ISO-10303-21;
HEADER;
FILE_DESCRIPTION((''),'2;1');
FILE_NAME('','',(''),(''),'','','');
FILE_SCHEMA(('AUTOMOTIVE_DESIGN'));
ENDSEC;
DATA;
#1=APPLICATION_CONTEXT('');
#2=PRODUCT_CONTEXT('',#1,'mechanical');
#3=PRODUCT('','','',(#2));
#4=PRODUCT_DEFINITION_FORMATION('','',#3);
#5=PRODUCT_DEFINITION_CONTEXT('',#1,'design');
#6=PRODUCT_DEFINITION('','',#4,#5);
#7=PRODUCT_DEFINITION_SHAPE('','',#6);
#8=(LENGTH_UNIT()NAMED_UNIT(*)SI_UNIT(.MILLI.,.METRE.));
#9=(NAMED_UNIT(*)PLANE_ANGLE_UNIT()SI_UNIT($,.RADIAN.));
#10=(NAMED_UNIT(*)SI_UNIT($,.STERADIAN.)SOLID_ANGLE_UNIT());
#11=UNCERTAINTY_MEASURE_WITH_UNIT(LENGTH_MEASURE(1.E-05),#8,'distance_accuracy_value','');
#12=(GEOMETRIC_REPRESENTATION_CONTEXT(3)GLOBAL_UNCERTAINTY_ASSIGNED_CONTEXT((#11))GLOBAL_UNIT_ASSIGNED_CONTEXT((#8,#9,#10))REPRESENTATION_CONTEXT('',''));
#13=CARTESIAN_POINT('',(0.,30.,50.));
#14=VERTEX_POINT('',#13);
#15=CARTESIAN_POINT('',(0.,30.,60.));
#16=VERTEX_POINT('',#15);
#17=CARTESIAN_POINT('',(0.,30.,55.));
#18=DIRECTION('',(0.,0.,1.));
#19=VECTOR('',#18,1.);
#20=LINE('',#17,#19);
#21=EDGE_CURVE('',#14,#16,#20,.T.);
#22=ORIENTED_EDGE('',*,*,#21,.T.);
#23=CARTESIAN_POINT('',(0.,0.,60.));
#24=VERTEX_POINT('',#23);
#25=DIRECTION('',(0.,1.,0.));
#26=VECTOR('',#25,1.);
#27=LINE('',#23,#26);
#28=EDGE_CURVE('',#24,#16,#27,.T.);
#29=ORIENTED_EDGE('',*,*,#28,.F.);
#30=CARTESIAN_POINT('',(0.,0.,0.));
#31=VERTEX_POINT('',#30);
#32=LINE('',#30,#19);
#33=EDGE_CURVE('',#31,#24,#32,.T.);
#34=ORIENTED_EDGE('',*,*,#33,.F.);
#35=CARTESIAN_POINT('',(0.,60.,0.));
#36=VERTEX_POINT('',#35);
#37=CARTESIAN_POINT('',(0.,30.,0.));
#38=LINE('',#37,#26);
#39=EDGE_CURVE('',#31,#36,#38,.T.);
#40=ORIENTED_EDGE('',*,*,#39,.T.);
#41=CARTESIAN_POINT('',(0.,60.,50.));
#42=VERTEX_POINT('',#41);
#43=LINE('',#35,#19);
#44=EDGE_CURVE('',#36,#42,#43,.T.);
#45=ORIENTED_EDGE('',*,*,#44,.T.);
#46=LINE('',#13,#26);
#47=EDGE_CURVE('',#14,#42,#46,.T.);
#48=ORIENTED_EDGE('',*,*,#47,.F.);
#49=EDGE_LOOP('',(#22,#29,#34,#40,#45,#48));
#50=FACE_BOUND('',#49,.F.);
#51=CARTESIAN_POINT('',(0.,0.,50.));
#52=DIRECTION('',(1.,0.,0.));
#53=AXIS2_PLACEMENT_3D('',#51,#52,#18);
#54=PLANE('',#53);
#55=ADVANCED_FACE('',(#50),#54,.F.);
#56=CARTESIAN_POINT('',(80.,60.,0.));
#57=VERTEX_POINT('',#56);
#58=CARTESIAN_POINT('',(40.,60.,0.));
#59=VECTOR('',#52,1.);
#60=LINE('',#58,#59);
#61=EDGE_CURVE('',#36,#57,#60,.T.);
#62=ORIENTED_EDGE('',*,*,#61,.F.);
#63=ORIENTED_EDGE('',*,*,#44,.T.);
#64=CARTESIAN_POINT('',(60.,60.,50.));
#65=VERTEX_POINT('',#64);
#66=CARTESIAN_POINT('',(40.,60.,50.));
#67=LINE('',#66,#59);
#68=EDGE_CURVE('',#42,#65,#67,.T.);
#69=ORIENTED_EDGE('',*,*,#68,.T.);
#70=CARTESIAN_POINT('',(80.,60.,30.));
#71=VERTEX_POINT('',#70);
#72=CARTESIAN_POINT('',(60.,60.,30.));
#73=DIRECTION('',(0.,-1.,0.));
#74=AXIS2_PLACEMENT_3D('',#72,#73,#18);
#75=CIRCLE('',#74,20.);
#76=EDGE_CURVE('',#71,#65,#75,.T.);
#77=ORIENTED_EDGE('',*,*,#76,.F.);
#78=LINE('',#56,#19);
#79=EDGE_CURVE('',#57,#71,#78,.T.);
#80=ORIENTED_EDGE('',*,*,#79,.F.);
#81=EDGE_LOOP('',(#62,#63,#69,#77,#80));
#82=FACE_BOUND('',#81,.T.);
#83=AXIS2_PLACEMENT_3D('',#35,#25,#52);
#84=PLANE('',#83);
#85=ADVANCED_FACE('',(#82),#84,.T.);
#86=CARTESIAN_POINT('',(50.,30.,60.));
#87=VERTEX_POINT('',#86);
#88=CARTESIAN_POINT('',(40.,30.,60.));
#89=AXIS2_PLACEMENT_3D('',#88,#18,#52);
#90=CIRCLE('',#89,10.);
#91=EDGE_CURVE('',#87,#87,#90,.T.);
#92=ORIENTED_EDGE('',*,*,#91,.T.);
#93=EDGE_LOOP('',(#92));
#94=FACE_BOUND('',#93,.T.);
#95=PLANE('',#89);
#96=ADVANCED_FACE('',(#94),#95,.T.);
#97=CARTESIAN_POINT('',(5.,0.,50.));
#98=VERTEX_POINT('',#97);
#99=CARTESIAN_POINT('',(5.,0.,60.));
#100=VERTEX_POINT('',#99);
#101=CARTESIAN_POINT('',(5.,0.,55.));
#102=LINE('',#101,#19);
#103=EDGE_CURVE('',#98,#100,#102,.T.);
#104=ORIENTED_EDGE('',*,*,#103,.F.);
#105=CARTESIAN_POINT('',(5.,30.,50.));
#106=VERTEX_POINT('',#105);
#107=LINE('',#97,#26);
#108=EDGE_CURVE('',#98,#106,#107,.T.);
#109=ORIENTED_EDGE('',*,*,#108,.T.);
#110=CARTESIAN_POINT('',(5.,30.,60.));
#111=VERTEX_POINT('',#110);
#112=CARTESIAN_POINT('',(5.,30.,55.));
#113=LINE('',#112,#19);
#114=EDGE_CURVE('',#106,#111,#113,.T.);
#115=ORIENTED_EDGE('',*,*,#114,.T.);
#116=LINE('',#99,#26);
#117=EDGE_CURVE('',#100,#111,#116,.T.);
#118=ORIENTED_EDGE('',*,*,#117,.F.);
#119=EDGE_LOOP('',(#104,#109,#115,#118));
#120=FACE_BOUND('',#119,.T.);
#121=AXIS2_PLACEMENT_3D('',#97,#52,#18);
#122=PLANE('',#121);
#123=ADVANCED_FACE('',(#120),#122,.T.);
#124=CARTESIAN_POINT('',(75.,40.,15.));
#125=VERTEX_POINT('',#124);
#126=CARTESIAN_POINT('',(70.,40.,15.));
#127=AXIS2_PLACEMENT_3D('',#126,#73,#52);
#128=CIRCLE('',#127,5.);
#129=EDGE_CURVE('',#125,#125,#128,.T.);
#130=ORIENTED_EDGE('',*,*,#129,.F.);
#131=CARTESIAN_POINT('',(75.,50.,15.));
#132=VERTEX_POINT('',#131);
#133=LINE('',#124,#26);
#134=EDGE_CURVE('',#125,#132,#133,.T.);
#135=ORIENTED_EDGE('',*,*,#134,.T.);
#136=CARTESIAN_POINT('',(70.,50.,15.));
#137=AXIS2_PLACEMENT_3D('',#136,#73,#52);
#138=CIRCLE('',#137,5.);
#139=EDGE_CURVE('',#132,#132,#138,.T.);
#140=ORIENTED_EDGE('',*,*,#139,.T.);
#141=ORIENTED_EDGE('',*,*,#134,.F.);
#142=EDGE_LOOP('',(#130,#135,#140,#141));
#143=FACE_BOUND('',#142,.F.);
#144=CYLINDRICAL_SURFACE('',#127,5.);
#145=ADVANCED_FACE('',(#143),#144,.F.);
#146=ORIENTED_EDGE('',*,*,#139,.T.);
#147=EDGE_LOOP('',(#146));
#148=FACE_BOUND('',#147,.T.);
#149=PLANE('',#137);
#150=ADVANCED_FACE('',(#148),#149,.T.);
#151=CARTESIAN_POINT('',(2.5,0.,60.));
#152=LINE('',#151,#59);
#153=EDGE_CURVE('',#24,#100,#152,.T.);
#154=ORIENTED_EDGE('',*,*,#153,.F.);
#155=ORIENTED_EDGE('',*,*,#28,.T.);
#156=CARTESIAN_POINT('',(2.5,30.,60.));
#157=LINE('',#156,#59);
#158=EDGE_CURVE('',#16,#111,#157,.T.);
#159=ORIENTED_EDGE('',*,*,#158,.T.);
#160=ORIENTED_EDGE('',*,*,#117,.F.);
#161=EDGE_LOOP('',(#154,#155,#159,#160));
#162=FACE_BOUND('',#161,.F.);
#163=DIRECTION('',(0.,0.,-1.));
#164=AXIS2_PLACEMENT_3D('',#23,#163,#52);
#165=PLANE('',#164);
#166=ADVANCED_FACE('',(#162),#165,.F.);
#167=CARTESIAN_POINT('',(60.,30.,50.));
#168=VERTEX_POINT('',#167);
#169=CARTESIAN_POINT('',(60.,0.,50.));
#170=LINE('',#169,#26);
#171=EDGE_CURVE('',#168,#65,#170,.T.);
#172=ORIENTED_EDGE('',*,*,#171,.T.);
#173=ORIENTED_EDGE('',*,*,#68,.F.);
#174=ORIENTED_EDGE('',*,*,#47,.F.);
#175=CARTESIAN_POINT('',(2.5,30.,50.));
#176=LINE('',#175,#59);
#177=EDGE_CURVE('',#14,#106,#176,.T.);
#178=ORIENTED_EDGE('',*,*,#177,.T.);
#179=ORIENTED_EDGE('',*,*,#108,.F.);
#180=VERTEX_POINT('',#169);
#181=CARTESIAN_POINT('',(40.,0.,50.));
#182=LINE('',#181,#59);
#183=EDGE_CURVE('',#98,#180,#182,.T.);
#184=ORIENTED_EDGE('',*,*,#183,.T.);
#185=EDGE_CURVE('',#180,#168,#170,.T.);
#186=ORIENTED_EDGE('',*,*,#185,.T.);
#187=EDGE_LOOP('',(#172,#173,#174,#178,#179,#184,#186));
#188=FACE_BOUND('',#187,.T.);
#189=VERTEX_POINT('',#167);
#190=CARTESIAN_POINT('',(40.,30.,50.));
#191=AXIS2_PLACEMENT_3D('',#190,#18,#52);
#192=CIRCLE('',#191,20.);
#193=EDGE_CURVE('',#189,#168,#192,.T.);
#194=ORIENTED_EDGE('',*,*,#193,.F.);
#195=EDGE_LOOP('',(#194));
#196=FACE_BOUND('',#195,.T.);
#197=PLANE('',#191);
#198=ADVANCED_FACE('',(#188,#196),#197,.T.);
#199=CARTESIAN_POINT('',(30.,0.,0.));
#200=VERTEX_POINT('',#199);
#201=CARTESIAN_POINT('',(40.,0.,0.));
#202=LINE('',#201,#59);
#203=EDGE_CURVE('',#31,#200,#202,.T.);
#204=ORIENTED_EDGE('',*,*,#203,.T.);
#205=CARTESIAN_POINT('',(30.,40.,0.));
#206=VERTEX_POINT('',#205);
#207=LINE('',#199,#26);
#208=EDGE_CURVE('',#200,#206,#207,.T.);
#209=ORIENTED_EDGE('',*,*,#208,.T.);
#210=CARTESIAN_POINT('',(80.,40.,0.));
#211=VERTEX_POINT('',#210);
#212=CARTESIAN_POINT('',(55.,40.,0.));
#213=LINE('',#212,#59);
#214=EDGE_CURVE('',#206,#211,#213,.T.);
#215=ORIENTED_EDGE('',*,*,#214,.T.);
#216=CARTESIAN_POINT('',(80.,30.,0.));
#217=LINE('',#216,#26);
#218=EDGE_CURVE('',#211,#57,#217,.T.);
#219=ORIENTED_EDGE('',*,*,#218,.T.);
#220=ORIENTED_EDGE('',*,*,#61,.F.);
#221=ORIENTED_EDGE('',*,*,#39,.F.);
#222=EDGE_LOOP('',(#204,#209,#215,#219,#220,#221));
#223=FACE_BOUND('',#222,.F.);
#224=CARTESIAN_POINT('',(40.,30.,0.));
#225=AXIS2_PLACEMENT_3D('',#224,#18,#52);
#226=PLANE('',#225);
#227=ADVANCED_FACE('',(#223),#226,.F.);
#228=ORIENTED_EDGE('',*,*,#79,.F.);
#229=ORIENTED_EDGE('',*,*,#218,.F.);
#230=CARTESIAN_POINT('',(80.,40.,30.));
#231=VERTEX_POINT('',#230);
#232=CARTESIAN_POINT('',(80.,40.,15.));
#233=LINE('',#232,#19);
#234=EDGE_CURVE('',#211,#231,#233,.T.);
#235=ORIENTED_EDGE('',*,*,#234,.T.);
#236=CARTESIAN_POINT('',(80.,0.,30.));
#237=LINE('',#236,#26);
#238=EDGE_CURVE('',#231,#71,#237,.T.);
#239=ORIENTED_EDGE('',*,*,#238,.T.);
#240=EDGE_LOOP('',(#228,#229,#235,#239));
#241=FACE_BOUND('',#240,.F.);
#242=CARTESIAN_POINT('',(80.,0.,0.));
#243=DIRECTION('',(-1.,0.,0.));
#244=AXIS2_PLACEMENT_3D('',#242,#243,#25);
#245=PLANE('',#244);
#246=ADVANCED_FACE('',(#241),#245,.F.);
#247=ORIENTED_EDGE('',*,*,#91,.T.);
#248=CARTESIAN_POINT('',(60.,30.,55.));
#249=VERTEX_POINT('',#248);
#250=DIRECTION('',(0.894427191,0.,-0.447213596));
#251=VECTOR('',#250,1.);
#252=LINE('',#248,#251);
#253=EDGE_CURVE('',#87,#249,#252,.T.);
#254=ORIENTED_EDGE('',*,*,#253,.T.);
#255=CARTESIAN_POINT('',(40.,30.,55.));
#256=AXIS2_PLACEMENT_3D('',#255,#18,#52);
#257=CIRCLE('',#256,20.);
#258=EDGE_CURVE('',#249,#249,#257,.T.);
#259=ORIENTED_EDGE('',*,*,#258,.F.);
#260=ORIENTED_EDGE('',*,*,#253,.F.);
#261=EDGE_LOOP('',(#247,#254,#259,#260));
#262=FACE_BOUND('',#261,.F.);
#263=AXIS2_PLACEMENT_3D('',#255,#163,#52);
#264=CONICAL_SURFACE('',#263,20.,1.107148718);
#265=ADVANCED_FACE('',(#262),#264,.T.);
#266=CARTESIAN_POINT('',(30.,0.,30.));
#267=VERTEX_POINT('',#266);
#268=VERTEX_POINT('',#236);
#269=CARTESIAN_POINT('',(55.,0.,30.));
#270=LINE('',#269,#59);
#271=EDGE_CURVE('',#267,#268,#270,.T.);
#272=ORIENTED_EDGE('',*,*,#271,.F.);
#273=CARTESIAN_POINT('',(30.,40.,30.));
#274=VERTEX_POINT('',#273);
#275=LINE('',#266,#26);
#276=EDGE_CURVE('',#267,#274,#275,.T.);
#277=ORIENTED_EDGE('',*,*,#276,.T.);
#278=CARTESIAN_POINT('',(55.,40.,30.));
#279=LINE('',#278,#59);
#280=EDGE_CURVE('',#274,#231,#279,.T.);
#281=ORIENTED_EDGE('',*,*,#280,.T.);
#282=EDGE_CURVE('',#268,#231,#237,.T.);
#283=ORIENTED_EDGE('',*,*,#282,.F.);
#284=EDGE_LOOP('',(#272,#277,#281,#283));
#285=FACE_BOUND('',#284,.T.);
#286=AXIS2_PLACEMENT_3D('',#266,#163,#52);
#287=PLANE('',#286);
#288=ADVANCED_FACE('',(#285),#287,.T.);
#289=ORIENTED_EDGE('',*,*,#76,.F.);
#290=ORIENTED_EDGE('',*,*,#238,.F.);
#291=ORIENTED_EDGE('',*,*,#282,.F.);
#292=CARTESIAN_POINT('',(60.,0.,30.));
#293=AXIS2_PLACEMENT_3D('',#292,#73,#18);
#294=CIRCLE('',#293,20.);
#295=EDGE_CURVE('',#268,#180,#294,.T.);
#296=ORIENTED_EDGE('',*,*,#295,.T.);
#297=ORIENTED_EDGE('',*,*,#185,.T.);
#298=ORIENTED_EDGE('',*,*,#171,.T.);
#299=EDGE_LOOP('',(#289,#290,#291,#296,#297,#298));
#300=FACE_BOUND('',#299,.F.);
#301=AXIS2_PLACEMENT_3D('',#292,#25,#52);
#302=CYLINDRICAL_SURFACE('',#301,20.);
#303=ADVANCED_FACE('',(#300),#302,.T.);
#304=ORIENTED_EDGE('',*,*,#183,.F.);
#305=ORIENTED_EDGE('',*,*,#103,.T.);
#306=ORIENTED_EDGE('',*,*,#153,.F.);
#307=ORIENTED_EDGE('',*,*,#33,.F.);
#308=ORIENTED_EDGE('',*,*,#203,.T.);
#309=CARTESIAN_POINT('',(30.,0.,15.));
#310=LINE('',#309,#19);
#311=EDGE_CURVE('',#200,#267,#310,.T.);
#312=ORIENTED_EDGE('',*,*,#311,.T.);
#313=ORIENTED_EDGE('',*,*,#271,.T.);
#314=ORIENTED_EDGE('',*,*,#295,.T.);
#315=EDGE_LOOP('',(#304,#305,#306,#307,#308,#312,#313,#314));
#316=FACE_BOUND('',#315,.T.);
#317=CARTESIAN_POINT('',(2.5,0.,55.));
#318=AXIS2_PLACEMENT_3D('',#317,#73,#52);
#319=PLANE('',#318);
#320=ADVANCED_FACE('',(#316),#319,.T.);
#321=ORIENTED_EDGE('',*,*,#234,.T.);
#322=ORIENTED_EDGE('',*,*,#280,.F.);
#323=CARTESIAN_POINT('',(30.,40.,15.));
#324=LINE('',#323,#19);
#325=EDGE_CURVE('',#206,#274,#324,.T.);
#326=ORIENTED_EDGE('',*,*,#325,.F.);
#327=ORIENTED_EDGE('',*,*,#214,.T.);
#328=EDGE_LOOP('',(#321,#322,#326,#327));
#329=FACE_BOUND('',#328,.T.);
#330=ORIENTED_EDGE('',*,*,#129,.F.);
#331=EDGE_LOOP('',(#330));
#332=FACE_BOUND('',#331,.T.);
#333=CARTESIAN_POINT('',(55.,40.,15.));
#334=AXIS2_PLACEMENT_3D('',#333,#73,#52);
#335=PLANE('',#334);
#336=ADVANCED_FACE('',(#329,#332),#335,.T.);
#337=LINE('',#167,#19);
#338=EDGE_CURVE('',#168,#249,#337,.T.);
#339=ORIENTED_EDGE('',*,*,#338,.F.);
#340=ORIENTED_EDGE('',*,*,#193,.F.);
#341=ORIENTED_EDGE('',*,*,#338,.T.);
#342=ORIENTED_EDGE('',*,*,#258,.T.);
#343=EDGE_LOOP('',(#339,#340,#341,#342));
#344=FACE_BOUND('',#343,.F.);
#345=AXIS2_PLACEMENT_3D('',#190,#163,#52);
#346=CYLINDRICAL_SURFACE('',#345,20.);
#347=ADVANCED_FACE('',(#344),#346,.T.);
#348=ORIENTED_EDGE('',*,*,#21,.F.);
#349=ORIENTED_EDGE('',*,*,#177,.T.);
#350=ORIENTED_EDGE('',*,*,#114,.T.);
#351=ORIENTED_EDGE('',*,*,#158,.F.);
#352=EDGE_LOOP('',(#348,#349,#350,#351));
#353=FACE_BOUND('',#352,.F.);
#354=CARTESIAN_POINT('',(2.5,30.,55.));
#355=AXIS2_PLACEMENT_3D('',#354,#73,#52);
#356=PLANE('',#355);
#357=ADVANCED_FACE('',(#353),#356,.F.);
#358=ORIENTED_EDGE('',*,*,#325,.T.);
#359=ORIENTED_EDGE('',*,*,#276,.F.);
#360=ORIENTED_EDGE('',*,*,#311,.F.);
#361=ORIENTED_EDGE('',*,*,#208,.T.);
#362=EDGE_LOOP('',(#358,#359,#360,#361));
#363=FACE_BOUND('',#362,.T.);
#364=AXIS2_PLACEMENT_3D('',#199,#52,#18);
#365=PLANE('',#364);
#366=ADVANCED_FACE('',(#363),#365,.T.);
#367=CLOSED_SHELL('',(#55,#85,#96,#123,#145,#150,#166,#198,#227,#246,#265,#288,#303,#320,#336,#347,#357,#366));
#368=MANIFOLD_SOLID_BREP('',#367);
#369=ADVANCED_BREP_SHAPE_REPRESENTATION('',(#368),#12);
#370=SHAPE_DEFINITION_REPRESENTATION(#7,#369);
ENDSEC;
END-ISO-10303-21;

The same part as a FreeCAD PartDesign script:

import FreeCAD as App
import Part
import Sketcher
from FreeCAD import Vector


def edges_at(feature, points):
    """Names of the edges that pass closest to the given points."""
    edges = feature.Shape.Edges
    near = lambda p: min(range(len(edges)), key=lambda i: edges[i].distToShape(Part.Vertex(*p))[0])
    return sorted({f"Edge{near(p) + 1}" for p in points})

doc = App.newDocument("Part")
body = doc.addObject("PartDesign::Body", "Body")

sketch1 = body.newObject("Sketcher::SketchObject", "Sketch")
sketch1.AttachmentSupport = (doc.getObject("XY_Plane"), [""])
sketch1.MapMode = "FlatFace"
sketch1.addGeometry([
    Part.LineSegment(Vector(0, 60, 0), Vector(0, 0, 0)),
    Part.LineSegment(Vector(0, 0, 0), Vector(80, 0, 0)),
    Part.LineSegment(Vector(80, 0, 0), Vector(80, 60, 0)),
    Part.LineSegment(Vector(80, 60, 0), Vector(0, 60, 0)),
], False)
sketch1.addConstraint([
    Sketcher.Constraint("Coincident", 0, 2, 1, 1),
    Sketcher.Constraint("Coincident", 1, 2, 2, 1),
    Sketcher.Constraint("Coincident", 2, 2, 3, 1),
    Sketcher.Constraint("Coincident", 3, 2, 0, 1),
    Sketcher.Constraint("Vertical", 0),
    Sketcher.Constraint("Horizontal", 1),
    Sketcher.Constraint("Vertical", 2),
    Sketcher.Constraint("Horizontal", 3),
    Sketcher.Constraint("Coincident", 0, 2, -1, 1),
    Sketcher.Constraint("DistanceX", 1, 1, 1, 2, 80.0),
    Sketcher.Constraint("DistanceY", 0, 2, 0, 1, 60.0),
])
pad1 = body.newObject("PartDesign::Pad", "Pad")
pad1.Profile = sketch1
pad1.Length = 50
doc.recompute()

fillet = body.newObject("PartDesign::Fillet", "Fillet")
fillet.Base = (pad1, edges_at(pad1, [(80, 30, 50)]))
fillet.Radius = 20
body2 = doc.addObject("PartDesign::Body", "Body001")

sketch2 = body2.newObject("Sketcher::SketchObject", "Sketch001")
sketch2.AttachmentSupport = (doc.getObject("XZ_Plane001"), [""])
sketch2.MapMode = "FlatFace"
sketch2.addGeometry([
    Part.LineSegment(Vector(0, 60, 0), Vector(0, 50, 0)),
    Part.LineSegment(Vector(0, 50, 0), Vector(5, 50, 0)),
    Part.LineSegment(Vector(5, 50, 0), Vector(5, 60, 0)),
    Part.LineSegment(Vector(5, 60, 0), Vector(0, 60, 0)),
], False)
sketch2.addConstraint([
    Sketcher.Constraint("Coincident", 0, 2, 1, 1),
    Sketcher.Constraint("Coincident", 1, 2, 2, 1),
    Sketcher.Constraint("Coincident", 2, 2, 3, 1),
    Sketcher.Constraint("Coincident", 3, 2, 0, 1),
    Sketcher.Constraint("Vertical", 0),
    Sketcher.Constraint("Horizontal", 1),
    Sketcher.Constraint("Vertical", 2),
    Sketcher.Constraint("Horizontal", 3),
    Sketcher.Constraint("PointOnObject", 0, 2, -2),
    Sketcher.Constraint("DistanceX", 1, 1, 1, 2, 5.0),
    Sketcher.Constraint("DistanceY", 0, 2, 0, 1, 10.0),
    Sketcher.Constraint("DistanceY", -1, 1, 0, 2, 50.0),
])
pad2 = body2.newObject("PartDesign::Pad", "Pad001")
pad2.Profile = sketch2
pad2.Length = 30
pad2.Reversed = True
doc.recompute()

boolean = body.newObject("PartDesign::Boolean", "Boolean")
boolean.Type = "Fuse"
boolean.addObjects([body2])

sketch3 = body.newObject("Sketcher::SketchObject", "Sketch002")
sketch3.AttachmentSupport = (doc.getObject("XZ_Plane"), [""])
sketch3.MapMode = "FlatFace"
sketch3.addGeometry([
    Part.LineSegment(Vector(30, 30, 0), Vector(30, 0, 0)),
    Part.LineSegment(Vector(30, 0, 0), Vector(80, 0, 0)),
    Part.LineSegment(Vector(80, 0, 0), Vector(80, 30, 0)),
    Part.LineSegment(Vector(80, 30, 0), Vector(30, 30, 0)),
], False)
sketch3.addConstraint([
    Sketcher.Constraint("Coincident", 0, 2, 1, 1),
    Sketcher.Constraint("Coincident", 1, 2, 2, 1),
    Sketcher.Constraint("Coincident", 2, 2, 3, 1),
    Sketcher.Constraint("Coincident", 3, 2, 0, 1),
    Sketcher.Constraint("Vertical", 0),
    Sketcher.Constraint("Horizontal", 1),
    Sketcher.Constraint("Vertical", 2),
    Sketcher.Constraint("Horizontal", 3),
    Sketcher.Constraint("PointOnObject", 0, 2, -1),
    Sketcher.Constraint("DistanceX", 1, 1, 1, 2, 50.0),
    Sketcher.Constraint("DistanceY", 0, 2, 0, 1, 30.0),
    Sketcher.Constraint("DistanceX", -1, 1, 0, 2, 30.0),
])
pocket1 = body.newObject("PartDesign::Pocket", "Pocket")
pocket1.Profile = sketch3
pocket1.Length = 40

sketch4 = body.newObject("Sketcher::SketchObject", "Sketch003")
sketch4.AttachmentSupport = (doc.getObject("XZ_Plane"), [""])
sketch4.MapMode = "FlatFace"
sketch4.AttachmentOffset = App.Placement(Vector(0, 0, -40), App.Rotation())
sketch4.addGeometry(Part.Circle(Vector(70, 15, 0), Vector(0, 0, 1), 5), False)
sketch4.addConstraint([
    Sketcher.Constraint("Diameter", 0, 10.0),
    Sketcher.Constraint("DistanceX", -1, 1, 0, 3, 70.0),
    Sketcher.Constraint("DistanceY", -1, 1, 0, 3, 15.0),
])
pocket2 = body.newObject("PartDesign::Pocket", "Pocket001")
pocket2.Profile = sketch4
pocket2.Length = 10

sketch5 = body.newObject("Sketcher::SketchObject", "Sketch004")
sketch5.AttachmentSupport = (doc.getObject("XY_Plane"), [""])
sketch5.MapMode = "FlatFace"
sketch5.AttachmentOffset = App.Placement(Vector(0, 0, 50), App.Rotation())
sketch5.addGeometry(Part.Circle(Vector(40, 30, 0), Vector(0, 0, 1), 20), False)
sketch5.addConstraint([
    Sketcher.Constraint("Diameter", 0, 40.0),
    Sketcher.Constraint("DistanceX", -1, 1, 0, 3, 40.0),
    Sketcher.Constraint("DistanceY", -1, 1, 0, 3, 30.0),
])
pad3 = body.newObject("PartDesign::Pad", "Pad002")
pad3.Profile = sketch5
pad3.Length = 10
doc.recompute()

chamfer = body.newObject("PartDesign::Chamfer", "Chamfer")
chamfer.Base = (pad3, edges_at(pad3, [(20, 30, 60)]))
chamfer.ChamferType = "Two distances"
chamfer.Size = 10
chamfer.Size2 = 5
chamfer.FlipDirection = True

doc.recompute()
